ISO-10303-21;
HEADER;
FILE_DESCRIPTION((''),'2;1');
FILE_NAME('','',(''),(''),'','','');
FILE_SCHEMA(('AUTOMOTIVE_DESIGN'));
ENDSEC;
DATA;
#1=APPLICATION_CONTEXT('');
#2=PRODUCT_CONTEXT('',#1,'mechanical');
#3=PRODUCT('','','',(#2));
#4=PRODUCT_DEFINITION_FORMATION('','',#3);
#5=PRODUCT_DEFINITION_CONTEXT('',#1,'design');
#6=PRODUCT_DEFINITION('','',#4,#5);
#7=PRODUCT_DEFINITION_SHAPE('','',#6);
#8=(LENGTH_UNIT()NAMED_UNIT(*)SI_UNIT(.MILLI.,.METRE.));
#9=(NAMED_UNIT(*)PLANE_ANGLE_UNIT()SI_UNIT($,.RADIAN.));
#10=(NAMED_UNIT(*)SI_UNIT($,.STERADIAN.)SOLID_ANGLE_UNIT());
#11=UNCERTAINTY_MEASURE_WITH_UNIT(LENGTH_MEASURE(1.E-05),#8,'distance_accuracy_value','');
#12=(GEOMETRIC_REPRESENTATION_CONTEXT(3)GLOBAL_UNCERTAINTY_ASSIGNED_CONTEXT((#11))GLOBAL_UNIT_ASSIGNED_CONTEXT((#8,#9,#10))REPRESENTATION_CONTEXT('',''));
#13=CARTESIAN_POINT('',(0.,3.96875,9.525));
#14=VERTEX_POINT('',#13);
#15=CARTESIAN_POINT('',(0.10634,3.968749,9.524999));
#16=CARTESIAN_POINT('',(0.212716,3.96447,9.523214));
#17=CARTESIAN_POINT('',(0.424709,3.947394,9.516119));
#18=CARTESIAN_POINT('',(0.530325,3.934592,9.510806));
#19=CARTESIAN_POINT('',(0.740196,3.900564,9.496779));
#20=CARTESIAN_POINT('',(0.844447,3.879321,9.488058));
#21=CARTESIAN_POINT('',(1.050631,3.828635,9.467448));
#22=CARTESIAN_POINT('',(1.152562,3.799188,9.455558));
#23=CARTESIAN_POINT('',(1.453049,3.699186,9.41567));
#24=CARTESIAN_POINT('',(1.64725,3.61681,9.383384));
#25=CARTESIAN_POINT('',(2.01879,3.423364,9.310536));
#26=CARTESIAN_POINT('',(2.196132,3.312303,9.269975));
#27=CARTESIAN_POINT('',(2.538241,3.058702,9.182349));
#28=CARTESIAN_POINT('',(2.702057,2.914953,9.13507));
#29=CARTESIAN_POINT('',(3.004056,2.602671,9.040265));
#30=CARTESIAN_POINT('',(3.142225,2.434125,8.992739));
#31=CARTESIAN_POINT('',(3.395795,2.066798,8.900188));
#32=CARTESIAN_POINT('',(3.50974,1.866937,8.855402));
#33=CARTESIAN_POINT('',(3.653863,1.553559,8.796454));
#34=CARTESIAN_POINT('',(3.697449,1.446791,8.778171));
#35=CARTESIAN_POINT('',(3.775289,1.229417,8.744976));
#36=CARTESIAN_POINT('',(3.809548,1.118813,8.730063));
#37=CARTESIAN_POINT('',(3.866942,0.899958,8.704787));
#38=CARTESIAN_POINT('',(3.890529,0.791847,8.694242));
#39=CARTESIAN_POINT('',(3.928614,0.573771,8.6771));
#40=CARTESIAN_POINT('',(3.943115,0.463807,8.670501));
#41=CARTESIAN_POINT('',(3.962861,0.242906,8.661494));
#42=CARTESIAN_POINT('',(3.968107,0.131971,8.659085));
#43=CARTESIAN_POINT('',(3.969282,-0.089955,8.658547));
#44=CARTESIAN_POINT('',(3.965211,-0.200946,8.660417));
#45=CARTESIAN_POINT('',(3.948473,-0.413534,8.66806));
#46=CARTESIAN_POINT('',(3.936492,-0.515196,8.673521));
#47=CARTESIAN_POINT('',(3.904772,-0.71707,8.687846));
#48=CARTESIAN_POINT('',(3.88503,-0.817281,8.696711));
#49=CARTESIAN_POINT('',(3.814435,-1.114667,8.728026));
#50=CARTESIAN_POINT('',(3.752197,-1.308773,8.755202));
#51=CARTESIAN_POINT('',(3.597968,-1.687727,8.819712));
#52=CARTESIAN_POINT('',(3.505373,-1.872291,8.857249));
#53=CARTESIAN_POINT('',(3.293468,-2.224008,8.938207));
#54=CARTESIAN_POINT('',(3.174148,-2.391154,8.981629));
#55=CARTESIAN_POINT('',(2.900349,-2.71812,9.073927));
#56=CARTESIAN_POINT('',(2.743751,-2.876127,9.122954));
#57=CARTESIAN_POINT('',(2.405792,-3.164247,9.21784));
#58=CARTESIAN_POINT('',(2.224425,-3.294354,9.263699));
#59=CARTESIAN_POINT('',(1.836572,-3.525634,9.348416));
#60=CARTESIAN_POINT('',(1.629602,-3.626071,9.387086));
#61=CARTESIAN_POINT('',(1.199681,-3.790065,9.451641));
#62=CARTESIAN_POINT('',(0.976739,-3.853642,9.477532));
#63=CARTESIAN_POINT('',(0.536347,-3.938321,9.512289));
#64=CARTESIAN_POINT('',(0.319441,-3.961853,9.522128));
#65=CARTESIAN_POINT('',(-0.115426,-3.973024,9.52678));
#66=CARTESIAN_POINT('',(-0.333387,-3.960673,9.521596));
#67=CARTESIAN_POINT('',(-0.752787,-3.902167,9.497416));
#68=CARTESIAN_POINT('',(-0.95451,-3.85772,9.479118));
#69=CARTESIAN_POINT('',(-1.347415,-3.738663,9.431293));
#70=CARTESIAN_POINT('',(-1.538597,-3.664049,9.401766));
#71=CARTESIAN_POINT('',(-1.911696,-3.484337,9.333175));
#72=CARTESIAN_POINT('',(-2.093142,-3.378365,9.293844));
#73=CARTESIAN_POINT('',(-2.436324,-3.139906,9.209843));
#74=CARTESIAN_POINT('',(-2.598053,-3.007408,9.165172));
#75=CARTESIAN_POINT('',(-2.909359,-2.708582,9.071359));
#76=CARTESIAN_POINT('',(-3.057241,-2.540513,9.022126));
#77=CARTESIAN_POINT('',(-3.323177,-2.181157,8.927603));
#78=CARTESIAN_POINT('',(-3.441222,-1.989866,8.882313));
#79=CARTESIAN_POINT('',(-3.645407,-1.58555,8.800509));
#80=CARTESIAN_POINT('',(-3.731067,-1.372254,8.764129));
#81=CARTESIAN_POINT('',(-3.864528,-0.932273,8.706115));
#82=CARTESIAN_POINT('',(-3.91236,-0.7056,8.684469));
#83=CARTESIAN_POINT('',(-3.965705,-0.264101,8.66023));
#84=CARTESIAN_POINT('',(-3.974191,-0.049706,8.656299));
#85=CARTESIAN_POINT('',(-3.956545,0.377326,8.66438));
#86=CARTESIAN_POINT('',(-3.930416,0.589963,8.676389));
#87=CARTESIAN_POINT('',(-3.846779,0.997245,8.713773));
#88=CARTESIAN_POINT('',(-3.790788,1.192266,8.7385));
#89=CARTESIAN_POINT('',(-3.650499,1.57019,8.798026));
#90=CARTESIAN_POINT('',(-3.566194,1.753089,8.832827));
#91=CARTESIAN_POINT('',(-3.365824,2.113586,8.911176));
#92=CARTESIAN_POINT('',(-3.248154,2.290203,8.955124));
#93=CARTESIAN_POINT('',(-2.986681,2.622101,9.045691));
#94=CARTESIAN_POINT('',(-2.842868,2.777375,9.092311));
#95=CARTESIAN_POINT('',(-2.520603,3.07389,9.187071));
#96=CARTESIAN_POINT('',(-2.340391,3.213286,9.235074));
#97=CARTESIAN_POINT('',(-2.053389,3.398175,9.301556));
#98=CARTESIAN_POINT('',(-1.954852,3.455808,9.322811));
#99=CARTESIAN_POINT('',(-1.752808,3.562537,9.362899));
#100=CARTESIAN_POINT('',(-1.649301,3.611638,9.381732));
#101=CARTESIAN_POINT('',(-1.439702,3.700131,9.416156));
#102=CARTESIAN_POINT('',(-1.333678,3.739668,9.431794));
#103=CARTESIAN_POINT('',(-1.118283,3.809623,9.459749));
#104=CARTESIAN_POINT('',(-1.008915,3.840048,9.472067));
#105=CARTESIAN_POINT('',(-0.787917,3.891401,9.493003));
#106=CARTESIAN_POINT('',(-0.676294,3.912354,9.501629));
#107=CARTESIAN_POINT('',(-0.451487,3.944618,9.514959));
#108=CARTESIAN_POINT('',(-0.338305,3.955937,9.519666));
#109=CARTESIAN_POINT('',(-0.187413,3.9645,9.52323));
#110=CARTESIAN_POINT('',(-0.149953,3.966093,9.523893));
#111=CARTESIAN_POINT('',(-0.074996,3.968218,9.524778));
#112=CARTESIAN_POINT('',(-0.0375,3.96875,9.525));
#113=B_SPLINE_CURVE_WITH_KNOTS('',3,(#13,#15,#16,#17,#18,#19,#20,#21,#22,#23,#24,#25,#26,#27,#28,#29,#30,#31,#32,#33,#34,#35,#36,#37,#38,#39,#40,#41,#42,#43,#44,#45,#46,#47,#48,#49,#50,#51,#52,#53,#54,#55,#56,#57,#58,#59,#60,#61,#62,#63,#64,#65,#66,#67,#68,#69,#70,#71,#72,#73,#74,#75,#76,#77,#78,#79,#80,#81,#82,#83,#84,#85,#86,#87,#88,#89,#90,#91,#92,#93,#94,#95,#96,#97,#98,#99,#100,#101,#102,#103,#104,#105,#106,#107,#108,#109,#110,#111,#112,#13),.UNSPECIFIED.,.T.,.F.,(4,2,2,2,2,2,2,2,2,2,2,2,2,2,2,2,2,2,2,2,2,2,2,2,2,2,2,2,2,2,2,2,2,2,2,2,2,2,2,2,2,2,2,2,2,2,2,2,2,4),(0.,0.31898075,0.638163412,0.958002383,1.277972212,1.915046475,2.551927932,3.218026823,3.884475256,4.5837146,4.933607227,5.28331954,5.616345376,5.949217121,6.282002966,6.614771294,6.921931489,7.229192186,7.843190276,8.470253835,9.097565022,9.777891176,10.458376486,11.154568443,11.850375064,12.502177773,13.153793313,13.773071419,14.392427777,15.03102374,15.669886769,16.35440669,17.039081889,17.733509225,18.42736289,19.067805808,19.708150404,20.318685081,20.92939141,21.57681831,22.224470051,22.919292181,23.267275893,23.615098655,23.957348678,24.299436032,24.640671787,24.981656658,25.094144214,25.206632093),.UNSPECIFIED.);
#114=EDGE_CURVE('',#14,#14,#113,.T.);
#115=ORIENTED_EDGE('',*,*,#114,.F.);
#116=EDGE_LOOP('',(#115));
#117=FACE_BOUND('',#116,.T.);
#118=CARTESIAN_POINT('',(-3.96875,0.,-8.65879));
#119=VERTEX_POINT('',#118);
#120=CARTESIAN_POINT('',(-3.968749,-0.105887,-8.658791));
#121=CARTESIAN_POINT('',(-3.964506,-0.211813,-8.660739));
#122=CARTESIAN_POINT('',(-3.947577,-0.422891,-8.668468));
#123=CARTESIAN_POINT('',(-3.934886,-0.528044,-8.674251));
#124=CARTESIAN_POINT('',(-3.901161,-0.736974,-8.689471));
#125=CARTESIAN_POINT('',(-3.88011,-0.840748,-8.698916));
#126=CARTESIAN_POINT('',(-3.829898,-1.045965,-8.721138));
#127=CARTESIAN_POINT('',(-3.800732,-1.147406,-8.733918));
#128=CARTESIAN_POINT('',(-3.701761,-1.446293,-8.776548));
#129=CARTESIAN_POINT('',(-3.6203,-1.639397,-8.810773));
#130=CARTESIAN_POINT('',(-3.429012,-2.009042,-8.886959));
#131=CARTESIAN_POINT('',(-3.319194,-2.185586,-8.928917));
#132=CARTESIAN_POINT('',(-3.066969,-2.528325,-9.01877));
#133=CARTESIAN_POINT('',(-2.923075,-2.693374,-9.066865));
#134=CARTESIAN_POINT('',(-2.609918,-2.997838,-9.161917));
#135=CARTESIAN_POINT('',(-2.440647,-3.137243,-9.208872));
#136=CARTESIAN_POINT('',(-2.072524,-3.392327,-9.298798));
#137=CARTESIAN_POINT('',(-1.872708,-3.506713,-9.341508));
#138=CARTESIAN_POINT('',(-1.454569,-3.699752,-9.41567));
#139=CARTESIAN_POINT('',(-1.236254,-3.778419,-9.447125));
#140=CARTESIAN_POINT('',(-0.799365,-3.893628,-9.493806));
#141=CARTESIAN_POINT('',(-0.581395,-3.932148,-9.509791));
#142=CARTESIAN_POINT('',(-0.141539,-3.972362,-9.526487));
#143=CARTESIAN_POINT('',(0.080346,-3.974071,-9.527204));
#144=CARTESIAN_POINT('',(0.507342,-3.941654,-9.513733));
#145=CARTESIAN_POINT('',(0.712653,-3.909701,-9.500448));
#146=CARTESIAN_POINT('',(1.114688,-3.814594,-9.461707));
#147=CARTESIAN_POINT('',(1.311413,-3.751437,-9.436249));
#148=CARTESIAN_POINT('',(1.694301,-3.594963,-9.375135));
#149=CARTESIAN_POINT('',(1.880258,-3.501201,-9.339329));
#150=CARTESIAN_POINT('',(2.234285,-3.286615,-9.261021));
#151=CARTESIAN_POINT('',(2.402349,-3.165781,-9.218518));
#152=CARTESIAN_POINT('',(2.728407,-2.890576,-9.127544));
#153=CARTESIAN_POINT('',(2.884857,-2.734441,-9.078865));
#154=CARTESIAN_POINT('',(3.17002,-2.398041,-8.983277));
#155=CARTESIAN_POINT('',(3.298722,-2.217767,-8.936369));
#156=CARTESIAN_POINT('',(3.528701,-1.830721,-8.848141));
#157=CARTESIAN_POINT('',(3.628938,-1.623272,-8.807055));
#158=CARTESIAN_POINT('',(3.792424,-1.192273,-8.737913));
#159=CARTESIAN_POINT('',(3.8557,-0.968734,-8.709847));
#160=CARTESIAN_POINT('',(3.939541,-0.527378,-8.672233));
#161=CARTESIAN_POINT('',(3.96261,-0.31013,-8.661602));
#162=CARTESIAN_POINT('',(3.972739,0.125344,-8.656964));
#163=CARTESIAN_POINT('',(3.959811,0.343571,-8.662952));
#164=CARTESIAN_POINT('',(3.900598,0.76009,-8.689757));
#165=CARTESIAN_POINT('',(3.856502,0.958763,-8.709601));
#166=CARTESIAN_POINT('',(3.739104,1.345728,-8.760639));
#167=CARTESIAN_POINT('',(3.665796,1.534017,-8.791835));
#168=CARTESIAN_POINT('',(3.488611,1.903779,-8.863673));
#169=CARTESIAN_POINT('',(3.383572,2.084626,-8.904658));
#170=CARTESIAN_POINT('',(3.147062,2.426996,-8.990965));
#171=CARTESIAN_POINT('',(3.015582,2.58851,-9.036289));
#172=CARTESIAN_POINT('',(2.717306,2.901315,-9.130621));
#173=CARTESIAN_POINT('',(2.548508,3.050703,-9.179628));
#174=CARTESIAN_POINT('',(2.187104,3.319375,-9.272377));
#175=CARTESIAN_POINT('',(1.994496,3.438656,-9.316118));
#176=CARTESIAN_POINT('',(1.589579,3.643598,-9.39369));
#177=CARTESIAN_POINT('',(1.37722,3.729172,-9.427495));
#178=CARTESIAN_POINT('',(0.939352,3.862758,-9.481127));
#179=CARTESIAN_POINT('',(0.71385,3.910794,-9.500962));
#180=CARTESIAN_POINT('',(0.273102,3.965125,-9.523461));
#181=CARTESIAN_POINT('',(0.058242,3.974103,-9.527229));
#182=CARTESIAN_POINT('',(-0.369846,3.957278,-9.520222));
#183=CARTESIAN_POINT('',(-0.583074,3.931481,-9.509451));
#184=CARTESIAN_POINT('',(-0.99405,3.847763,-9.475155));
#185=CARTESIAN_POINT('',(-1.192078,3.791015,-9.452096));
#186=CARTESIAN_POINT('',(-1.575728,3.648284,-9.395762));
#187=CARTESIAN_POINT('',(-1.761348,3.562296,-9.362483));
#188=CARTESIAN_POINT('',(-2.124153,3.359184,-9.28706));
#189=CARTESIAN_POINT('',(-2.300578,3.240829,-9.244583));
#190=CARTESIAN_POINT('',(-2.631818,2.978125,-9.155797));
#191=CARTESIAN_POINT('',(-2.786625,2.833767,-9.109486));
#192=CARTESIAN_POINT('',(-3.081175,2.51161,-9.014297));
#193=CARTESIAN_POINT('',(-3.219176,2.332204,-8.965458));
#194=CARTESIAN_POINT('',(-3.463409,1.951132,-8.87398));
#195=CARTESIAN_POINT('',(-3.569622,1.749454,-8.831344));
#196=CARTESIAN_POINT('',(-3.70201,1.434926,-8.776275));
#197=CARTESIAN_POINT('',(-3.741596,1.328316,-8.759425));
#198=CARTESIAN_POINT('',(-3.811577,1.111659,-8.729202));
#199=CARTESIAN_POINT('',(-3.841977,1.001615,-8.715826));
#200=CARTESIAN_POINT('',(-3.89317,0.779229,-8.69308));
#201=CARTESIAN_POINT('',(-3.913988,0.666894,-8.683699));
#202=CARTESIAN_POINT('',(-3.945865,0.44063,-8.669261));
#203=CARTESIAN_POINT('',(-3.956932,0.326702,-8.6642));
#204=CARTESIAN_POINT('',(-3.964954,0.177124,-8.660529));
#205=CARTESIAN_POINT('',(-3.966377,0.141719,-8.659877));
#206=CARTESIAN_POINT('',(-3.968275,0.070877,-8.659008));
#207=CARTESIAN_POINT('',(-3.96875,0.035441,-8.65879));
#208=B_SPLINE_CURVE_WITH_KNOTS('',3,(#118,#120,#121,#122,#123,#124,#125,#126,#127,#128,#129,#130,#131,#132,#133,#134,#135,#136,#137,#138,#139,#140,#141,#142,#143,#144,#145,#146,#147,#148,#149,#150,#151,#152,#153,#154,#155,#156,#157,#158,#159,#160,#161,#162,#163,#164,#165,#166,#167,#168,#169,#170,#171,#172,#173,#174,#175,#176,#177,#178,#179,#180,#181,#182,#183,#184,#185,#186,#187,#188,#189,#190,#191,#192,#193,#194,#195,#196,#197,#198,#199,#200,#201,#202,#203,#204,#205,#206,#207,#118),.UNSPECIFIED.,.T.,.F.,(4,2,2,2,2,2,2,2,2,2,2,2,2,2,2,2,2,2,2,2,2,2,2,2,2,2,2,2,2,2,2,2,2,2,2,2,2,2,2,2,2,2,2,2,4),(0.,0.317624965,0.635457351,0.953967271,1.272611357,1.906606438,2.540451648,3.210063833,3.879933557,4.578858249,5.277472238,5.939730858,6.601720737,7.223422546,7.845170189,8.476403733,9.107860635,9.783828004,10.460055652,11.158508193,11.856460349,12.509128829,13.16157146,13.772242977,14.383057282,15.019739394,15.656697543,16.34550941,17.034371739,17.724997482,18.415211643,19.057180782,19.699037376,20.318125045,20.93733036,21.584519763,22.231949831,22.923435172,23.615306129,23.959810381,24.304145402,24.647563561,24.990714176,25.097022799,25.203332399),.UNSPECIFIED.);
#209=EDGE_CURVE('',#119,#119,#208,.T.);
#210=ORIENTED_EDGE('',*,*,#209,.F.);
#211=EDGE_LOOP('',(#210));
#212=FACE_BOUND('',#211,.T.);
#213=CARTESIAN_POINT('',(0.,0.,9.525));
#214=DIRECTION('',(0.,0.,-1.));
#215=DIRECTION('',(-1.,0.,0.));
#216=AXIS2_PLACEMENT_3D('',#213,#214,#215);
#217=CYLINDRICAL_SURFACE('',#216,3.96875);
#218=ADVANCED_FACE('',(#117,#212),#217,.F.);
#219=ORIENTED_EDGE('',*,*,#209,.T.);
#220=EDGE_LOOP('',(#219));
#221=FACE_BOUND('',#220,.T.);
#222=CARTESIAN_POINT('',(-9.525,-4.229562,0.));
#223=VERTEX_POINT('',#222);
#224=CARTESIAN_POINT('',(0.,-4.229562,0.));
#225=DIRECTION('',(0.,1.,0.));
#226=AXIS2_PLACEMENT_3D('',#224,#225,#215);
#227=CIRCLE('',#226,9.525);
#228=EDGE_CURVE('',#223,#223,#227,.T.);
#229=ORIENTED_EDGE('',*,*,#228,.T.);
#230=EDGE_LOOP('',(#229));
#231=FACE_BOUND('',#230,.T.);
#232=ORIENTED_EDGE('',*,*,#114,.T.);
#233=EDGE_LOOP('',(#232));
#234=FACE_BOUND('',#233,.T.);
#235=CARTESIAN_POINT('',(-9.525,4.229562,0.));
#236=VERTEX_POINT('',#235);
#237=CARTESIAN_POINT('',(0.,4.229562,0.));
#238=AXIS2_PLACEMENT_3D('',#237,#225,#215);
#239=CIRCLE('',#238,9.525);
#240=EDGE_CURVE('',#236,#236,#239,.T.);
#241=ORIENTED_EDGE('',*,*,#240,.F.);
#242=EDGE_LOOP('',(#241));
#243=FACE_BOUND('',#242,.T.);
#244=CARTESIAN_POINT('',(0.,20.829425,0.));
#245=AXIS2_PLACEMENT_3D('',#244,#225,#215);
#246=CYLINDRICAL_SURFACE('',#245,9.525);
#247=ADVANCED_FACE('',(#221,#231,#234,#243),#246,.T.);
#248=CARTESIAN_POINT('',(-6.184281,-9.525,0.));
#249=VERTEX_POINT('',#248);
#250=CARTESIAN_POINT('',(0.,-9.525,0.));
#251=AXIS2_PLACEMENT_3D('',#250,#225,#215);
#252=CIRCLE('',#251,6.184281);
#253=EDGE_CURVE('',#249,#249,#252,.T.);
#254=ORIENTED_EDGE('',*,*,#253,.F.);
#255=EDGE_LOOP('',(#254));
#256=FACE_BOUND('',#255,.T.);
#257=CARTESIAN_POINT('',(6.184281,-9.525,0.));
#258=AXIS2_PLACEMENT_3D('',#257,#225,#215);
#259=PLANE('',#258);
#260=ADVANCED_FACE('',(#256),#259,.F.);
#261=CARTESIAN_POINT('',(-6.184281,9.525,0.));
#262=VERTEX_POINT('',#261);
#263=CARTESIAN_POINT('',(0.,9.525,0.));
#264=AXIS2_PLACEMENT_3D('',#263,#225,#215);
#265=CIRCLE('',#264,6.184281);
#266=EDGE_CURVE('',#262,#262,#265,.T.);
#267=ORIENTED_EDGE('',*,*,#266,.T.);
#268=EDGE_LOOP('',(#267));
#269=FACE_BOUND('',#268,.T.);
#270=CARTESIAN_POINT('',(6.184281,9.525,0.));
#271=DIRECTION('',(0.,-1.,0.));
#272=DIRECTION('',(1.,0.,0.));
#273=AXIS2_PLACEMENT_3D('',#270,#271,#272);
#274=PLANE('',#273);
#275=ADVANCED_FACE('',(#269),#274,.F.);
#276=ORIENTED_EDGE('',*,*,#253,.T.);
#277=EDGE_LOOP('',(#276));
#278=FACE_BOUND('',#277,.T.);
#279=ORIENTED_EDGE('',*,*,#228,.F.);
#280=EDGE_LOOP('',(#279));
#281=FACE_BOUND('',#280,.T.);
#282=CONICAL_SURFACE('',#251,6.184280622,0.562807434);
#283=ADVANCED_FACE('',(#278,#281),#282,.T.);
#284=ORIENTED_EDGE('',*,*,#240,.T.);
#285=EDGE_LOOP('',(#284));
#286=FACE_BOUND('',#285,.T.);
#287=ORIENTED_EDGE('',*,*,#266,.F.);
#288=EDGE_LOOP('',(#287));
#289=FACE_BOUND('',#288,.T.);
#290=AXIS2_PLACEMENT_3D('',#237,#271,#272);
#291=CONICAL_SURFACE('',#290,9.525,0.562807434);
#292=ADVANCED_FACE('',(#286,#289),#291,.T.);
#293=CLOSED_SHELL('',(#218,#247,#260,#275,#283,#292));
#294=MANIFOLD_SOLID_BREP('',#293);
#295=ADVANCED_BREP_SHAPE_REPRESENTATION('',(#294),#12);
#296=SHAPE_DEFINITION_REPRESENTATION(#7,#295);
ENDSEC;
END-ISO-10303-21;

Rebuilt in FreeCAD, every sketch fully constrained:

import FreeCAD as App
import Part
import Sketcher
from FreeCAD import Vector
Q = App.Units.Quantity


def add_polygon(sketch, points):
    """Adds a closed chain of lines whose ends are joined by coincident constraints."""
    first, n = sketch.GeometryCount, len(points)
    for a, b in zip(points, points[1:] + points[:1]):
        sketch.addGeometry(Part.LineSegment(App.Vector(*a, 0), App.Vector(*b, 0)), False)
    for i in range(n):
        sketch.addConstraint(Sketcher.Constraint("Coincident", first + i, 2, first + (i + 1) % n, 1))

doc = App.newDocument("Part")
params = doc.addObject("Spreadsheet::Sheet", "Params")
for row, (alias, value) in enumerate([
    ("sketch1_height", "0.75 in"),
    ("revolution_angle", "360 deg"),
    ("sketch2_diameter", "0.3125 in"),
], start=1):
    params.set(f"A{row}", alias)
    params.set(f"B{row}", "=" + value)
    params.setAlias(f"B{row}", alias)

body = doc.addObject("PartDesign::Body", "Body")

sketch1 = body.newObject("Sketcher::SketchObject", "Sketch")
sketch1.AttachmentSupport = (doc.getObject("XY_Plane"), [""])
sketch1.MapMode = "FlatFace"
add_polygon(sketch1, [(0, 10), (0, -10), (6, -10), (10, -4), (10, 4), (6, 10)])
sketch1.addConstraint([
    Sketcher.Constraint("Vertical", 0),
    Sketcher.Constraint("Horizontal", 1),
    Sketcher.Constraint("Vertical", 3),
    Sketcher.Constraint("Horizontal", 5),
    Sketcher.Constraint("Symmetric", 0, 2, 5, 2, -1, 1),
    Sketcher.Constraint("Vertical", 1, 2, 4, 2),
    Sketcher.Constraint("Equal", 2, 4),
    Sketcher.Constraint("DistanceY", 0, 2, 0, 1, Q("0.75 in")),
    Sketcher.Constraint("DistanceX", -1, 1, 2, 2, Q("0.375 in")),
    Sketcher.Constraint("DistanceX", 1, 1, 1, 2, 6.184281),
    Sketcher.Constraint("DistanceY", 3, 1, 3, 2, 8.459123),
])
sketch1.setExpression("Constraints[13]", "Params.sketch1_height")
revolution = body.newObject("PartDesign::Revolution", "Revolution")
revolution.Profile = sketch1
revolution.ReferenceAxis = (sketch1, ["V_Axis"])
revolution.setExpression("Angle", "Params.revolution_angle")

sketch2 = body.newObject("Sketcher::SketchObject", "Sketch001")
sketch2.AttachmentSupport = (doc.getObject("XY_Plane"), [""])
sketch2.MapMode = "FlatFace"
sketch2.addGeometry(Part.Circle(Vector(0, 0, 0), Vector(0, 0, 1), 4), False)
sketch2.addConstraint([
    Sketcher.Constraint("Coincident", 0, 3, -1, 1),
    Sketcher.Constraint("Diameter", 0, Q("0.3125 in")),
])
sketch2.setExpression("Constraints[1]", "Params.sketch2_diameter")
pocket1 = body.newObject("PartDesign::Pocket", "Pocket")
pocket1.Profile = sketch2
pocket1.Type = "ThroughAll"
pocket1.Midplane = True

doc.recompute()
